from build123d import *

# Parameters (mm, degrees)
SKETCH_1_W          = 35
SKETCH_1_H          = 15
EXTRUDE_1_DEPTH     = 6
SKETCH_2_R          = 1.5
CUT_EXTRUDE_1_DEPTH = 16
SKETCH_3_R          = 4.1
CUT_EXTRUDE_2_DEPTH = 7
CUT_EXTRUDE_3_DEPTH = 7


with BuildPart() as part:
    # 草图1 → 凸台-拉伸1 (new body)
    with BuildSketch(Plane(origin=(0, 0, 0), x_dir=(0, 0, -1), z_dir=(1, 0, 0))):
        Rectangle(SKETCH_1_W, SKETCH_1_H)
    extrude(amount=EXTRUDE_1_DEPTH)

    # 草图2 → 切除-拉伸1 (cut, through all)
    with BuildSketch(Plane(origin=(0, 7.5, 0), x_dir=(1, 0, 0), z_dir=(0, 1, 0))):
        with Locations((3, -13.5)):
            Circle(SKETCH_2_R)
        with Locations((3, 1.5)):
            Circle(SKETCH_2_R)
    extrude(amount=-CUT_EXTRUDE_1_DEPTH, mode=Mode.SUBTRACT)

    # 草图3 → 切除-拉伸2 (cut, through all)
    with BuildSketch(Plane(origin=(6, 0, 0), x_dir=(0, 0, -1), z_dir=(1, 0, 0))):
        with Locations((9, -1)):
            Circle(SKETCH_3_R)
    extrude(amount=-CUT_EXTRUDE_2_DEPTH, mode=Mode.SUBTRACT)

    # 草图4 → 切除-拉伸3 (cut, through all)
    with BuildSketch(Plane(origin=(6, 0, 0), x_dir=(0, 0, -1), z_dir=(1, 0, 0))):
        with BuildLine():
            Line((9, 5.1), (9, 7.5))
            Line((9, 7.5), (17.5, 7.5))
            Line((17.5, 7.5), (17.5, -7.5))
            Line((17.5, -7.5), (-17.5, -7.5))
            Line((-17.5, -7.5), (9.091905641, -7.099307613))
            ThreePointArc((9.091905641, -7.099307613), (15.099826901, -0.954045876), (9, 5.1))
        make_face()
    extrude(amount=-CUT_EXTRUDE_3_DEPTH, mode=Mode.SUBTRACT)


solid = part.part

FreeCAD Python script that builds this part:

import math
import FreeCAD as App
import Part
import Sketcher


def add_polygon(sketch, points):
    """Adds a closed chain of lines whose ends are joined by coincident constraints."""
    first, n = sketch.GeometryCount, len(points)
    for a, b in zip(points, points[1:] + points[:1]):
        sketch.addGeometry(Part.LineSegment(App.Vector(*a, 0), App.Vector(*b, 0)), False)
    for i in range(n):
        sketch.addConstraint(Sketcher.Constraint("Coincident", first + i, 2, first + (i + 1) % n, 1))

doc = App.newDocument("Part")
body = doc.addObject("PartDesign::Body", "Body")

sketch1 = body.newObject("Sketcher::SketchObject", "Sketch")
sketch1.AttachmentSupport = (doc.getObject("YZ_Plane"), [""])
sketch1.MapMode = "FlatFace"
add_polygon(sketch1, [(8, 18), (-8, 18), (-8, -18), (8, -18)])
sketch1.addConstraint([
    Sketcher.Constraint("Horizontal", 0),
    Sketcher.Constraint("Vertical", 1),
    Sketcher.Constraint("Horizontal", 2),
    Sketcher.Constraint("Vertical", 3),
    Sketcher.Constraint("Symmetric", 0, 2, 2, 2, -1, 1),
    Sketcher.Constraint("DistanceX", 0, 2, 0, 1, 15.0),
    Sketcher.Constraint("DistanceY", 1, 2, 1, 1, 35.0),
])
pad1 = body.newObject("PartDesign::Pad", "Pad")
pad1.Profile = sketch1
pad1.Length = 6

sketch2 = body.newObject("Sketcher::SketchObject", "Sketch001")
sketch2.AttachmentSupport = (doc.getObject("XZ_Plane"), [""])
sketch2.MapMode = "FlatFace"
sketch2.AttachmentOffset = App.Placement(App.Vector(0, 0, -7.5), App.Rotation())
sketch2.addGeometry([
    Part.Circle(App.Vector(3, 13.5, 0), App.Vector(0, 0, 1), 1.5),
    Part.Circle(App.Vector(3, -1.5, 0), App.Vector(0, 0, 1), 1.5),
], False)
sketch2.addConstraint([
    Sketcher.Constraint("Equal", 0, 1),
    Sketcher.Constraint("Vertical", 0, 3, 1, 3),
    Sketcher.Constraint("Diameter", 0, 3.0),
    Sketcher.Constraint("DistanceX", -1, 1, 0, 3, 3.0),
    Sketcher.Constraint("DistanceY", 1, 3, 0, 3, 15.0),
    Sketcher.Constraint("DistanceY", -1, 1, 0, 3, 13.5),
])
pocket1 = body.newObject("PartDesign::Pocket", "Pocket")
pocket1.Profile = sketch2
pocket1.Type = "ThroughAll"
pocket1.Reversed = True

sketch3 = body.newObject("Sketcher::SketchObject", "Sketch002")
sketch3.AttachmentSupport = (doc.getObject("YZ_Plane"), [""])
sketch3.MapMode = "FlatFace"
sketch3.AttachmentOffset = App.Placement(App.Vector(0, 0, 6), App.Rotation())
sketch3.addGeometry(Part.Circle(App.Vector(-1, -9, 0), App.Vector(0, 0, 1), 4.1), False)
sketch3.addConstraint([
    Sketcher.Constraint("Diameter", 0, 8.2),
    Sketcher.Constraint("DistanceX", 0, 3, -1, 1, 1.0),
    Sketcher.Constraint("DistanceY", 0, 3, -1, 1, 9.0),
])
pocket2 = body.newObject("PartDesign::Pocket", "Pocket001")
pocket2.Profile = sketch3
pocket2.Type = "ThroughAll"

sketch4 = body.newObject("Sketcher::SketchObject", "Sketch003")
sketch4.AttachmentSupport = (doc.getObject("YZ_Plane"), [""])
sketch4.MapMode = "FlatFace"
sketch4.AttachmentOffset = App.Placement(App.Vector(0, 0, 6), App.Rotation())
sketch4.addGeometry([
    Part.LineSegment(App.Vector(7.5, -9, 0), App.Vector(5.1, -9, 0)),
    Part.ArcOfCircle(Part.Circle(App.Vector(-1, -9, 0), App.Vector(0, 0, 1), 6.1), math.radians(-179), math.radians(0)),
    Part.LineSegment(App.Vector(-7.1, -9.1, 0), App.Vector(-7.5, 17.5, 0)),
    Part.LineSegment(App.Vector(-7.5, 17.5, 0), App.Vector(-7.5, -17.5, 0)),
    Part.LineSegment(App.Vector(-7.5, -17.5, 0), App.Vector(7.5, -17.5, 0)),
    Part.LineSegment(App.Vector(7.5, -17.5, 0), App.Vector(7.5, -9, 0)),
], False)
sketch4.addConstraint([
    Sketcher.Constraint("Coincident", 0, 2, 1, 2),
    Sketcher.Constraint("Tangent", 1, 1, 2, 1),
    Sketcher.Constraint("Coincident", 2, 2, 3, 1),
    Sketcher.Constraint("Coincident", 3, 2, 4, 1),
    Sketcher.Constraint("Coincident", 4, 2, 5, 1),
    Sketcher.Constraint("Coincident", 5, 2, 0, 1),
    Sketcher.Constraint("Horizontal", 0),
    Sketcher.Constraint("Vertical", 3),
    Sketcher.Constraint("Horizontal", 4),
    Sketcher.Constraint("Vertical", 5),
    Sketcher.Constraint("Symmetric", 2, 2, 4, 2, -1, 1),
    Sketcher.Constraint("Horizontal", 1, 3, 0, 2),
    Sketcher.Constraint("Radius", 1, 6.1),
    Sketcher.Constraint("DistanceX", 4, 1, 4, 2, 15.0),
    Sketcher.Constraint("DistanceY", 3, 2, 3, 1, 35.0),
    Sketcher.Constraint("DistanceX", 0, 2, 0, 1, 2.4),
    Sketcher.Constraint("DistanceY", 5, 1, 5, 2, 8.5),
])
pocket3 = body.newObject("PartDesign::Pocket", "Pocket002")
pocket3.Profile = sketch4
pocket3.Type = "ThroughAll"

doc.recompute()
